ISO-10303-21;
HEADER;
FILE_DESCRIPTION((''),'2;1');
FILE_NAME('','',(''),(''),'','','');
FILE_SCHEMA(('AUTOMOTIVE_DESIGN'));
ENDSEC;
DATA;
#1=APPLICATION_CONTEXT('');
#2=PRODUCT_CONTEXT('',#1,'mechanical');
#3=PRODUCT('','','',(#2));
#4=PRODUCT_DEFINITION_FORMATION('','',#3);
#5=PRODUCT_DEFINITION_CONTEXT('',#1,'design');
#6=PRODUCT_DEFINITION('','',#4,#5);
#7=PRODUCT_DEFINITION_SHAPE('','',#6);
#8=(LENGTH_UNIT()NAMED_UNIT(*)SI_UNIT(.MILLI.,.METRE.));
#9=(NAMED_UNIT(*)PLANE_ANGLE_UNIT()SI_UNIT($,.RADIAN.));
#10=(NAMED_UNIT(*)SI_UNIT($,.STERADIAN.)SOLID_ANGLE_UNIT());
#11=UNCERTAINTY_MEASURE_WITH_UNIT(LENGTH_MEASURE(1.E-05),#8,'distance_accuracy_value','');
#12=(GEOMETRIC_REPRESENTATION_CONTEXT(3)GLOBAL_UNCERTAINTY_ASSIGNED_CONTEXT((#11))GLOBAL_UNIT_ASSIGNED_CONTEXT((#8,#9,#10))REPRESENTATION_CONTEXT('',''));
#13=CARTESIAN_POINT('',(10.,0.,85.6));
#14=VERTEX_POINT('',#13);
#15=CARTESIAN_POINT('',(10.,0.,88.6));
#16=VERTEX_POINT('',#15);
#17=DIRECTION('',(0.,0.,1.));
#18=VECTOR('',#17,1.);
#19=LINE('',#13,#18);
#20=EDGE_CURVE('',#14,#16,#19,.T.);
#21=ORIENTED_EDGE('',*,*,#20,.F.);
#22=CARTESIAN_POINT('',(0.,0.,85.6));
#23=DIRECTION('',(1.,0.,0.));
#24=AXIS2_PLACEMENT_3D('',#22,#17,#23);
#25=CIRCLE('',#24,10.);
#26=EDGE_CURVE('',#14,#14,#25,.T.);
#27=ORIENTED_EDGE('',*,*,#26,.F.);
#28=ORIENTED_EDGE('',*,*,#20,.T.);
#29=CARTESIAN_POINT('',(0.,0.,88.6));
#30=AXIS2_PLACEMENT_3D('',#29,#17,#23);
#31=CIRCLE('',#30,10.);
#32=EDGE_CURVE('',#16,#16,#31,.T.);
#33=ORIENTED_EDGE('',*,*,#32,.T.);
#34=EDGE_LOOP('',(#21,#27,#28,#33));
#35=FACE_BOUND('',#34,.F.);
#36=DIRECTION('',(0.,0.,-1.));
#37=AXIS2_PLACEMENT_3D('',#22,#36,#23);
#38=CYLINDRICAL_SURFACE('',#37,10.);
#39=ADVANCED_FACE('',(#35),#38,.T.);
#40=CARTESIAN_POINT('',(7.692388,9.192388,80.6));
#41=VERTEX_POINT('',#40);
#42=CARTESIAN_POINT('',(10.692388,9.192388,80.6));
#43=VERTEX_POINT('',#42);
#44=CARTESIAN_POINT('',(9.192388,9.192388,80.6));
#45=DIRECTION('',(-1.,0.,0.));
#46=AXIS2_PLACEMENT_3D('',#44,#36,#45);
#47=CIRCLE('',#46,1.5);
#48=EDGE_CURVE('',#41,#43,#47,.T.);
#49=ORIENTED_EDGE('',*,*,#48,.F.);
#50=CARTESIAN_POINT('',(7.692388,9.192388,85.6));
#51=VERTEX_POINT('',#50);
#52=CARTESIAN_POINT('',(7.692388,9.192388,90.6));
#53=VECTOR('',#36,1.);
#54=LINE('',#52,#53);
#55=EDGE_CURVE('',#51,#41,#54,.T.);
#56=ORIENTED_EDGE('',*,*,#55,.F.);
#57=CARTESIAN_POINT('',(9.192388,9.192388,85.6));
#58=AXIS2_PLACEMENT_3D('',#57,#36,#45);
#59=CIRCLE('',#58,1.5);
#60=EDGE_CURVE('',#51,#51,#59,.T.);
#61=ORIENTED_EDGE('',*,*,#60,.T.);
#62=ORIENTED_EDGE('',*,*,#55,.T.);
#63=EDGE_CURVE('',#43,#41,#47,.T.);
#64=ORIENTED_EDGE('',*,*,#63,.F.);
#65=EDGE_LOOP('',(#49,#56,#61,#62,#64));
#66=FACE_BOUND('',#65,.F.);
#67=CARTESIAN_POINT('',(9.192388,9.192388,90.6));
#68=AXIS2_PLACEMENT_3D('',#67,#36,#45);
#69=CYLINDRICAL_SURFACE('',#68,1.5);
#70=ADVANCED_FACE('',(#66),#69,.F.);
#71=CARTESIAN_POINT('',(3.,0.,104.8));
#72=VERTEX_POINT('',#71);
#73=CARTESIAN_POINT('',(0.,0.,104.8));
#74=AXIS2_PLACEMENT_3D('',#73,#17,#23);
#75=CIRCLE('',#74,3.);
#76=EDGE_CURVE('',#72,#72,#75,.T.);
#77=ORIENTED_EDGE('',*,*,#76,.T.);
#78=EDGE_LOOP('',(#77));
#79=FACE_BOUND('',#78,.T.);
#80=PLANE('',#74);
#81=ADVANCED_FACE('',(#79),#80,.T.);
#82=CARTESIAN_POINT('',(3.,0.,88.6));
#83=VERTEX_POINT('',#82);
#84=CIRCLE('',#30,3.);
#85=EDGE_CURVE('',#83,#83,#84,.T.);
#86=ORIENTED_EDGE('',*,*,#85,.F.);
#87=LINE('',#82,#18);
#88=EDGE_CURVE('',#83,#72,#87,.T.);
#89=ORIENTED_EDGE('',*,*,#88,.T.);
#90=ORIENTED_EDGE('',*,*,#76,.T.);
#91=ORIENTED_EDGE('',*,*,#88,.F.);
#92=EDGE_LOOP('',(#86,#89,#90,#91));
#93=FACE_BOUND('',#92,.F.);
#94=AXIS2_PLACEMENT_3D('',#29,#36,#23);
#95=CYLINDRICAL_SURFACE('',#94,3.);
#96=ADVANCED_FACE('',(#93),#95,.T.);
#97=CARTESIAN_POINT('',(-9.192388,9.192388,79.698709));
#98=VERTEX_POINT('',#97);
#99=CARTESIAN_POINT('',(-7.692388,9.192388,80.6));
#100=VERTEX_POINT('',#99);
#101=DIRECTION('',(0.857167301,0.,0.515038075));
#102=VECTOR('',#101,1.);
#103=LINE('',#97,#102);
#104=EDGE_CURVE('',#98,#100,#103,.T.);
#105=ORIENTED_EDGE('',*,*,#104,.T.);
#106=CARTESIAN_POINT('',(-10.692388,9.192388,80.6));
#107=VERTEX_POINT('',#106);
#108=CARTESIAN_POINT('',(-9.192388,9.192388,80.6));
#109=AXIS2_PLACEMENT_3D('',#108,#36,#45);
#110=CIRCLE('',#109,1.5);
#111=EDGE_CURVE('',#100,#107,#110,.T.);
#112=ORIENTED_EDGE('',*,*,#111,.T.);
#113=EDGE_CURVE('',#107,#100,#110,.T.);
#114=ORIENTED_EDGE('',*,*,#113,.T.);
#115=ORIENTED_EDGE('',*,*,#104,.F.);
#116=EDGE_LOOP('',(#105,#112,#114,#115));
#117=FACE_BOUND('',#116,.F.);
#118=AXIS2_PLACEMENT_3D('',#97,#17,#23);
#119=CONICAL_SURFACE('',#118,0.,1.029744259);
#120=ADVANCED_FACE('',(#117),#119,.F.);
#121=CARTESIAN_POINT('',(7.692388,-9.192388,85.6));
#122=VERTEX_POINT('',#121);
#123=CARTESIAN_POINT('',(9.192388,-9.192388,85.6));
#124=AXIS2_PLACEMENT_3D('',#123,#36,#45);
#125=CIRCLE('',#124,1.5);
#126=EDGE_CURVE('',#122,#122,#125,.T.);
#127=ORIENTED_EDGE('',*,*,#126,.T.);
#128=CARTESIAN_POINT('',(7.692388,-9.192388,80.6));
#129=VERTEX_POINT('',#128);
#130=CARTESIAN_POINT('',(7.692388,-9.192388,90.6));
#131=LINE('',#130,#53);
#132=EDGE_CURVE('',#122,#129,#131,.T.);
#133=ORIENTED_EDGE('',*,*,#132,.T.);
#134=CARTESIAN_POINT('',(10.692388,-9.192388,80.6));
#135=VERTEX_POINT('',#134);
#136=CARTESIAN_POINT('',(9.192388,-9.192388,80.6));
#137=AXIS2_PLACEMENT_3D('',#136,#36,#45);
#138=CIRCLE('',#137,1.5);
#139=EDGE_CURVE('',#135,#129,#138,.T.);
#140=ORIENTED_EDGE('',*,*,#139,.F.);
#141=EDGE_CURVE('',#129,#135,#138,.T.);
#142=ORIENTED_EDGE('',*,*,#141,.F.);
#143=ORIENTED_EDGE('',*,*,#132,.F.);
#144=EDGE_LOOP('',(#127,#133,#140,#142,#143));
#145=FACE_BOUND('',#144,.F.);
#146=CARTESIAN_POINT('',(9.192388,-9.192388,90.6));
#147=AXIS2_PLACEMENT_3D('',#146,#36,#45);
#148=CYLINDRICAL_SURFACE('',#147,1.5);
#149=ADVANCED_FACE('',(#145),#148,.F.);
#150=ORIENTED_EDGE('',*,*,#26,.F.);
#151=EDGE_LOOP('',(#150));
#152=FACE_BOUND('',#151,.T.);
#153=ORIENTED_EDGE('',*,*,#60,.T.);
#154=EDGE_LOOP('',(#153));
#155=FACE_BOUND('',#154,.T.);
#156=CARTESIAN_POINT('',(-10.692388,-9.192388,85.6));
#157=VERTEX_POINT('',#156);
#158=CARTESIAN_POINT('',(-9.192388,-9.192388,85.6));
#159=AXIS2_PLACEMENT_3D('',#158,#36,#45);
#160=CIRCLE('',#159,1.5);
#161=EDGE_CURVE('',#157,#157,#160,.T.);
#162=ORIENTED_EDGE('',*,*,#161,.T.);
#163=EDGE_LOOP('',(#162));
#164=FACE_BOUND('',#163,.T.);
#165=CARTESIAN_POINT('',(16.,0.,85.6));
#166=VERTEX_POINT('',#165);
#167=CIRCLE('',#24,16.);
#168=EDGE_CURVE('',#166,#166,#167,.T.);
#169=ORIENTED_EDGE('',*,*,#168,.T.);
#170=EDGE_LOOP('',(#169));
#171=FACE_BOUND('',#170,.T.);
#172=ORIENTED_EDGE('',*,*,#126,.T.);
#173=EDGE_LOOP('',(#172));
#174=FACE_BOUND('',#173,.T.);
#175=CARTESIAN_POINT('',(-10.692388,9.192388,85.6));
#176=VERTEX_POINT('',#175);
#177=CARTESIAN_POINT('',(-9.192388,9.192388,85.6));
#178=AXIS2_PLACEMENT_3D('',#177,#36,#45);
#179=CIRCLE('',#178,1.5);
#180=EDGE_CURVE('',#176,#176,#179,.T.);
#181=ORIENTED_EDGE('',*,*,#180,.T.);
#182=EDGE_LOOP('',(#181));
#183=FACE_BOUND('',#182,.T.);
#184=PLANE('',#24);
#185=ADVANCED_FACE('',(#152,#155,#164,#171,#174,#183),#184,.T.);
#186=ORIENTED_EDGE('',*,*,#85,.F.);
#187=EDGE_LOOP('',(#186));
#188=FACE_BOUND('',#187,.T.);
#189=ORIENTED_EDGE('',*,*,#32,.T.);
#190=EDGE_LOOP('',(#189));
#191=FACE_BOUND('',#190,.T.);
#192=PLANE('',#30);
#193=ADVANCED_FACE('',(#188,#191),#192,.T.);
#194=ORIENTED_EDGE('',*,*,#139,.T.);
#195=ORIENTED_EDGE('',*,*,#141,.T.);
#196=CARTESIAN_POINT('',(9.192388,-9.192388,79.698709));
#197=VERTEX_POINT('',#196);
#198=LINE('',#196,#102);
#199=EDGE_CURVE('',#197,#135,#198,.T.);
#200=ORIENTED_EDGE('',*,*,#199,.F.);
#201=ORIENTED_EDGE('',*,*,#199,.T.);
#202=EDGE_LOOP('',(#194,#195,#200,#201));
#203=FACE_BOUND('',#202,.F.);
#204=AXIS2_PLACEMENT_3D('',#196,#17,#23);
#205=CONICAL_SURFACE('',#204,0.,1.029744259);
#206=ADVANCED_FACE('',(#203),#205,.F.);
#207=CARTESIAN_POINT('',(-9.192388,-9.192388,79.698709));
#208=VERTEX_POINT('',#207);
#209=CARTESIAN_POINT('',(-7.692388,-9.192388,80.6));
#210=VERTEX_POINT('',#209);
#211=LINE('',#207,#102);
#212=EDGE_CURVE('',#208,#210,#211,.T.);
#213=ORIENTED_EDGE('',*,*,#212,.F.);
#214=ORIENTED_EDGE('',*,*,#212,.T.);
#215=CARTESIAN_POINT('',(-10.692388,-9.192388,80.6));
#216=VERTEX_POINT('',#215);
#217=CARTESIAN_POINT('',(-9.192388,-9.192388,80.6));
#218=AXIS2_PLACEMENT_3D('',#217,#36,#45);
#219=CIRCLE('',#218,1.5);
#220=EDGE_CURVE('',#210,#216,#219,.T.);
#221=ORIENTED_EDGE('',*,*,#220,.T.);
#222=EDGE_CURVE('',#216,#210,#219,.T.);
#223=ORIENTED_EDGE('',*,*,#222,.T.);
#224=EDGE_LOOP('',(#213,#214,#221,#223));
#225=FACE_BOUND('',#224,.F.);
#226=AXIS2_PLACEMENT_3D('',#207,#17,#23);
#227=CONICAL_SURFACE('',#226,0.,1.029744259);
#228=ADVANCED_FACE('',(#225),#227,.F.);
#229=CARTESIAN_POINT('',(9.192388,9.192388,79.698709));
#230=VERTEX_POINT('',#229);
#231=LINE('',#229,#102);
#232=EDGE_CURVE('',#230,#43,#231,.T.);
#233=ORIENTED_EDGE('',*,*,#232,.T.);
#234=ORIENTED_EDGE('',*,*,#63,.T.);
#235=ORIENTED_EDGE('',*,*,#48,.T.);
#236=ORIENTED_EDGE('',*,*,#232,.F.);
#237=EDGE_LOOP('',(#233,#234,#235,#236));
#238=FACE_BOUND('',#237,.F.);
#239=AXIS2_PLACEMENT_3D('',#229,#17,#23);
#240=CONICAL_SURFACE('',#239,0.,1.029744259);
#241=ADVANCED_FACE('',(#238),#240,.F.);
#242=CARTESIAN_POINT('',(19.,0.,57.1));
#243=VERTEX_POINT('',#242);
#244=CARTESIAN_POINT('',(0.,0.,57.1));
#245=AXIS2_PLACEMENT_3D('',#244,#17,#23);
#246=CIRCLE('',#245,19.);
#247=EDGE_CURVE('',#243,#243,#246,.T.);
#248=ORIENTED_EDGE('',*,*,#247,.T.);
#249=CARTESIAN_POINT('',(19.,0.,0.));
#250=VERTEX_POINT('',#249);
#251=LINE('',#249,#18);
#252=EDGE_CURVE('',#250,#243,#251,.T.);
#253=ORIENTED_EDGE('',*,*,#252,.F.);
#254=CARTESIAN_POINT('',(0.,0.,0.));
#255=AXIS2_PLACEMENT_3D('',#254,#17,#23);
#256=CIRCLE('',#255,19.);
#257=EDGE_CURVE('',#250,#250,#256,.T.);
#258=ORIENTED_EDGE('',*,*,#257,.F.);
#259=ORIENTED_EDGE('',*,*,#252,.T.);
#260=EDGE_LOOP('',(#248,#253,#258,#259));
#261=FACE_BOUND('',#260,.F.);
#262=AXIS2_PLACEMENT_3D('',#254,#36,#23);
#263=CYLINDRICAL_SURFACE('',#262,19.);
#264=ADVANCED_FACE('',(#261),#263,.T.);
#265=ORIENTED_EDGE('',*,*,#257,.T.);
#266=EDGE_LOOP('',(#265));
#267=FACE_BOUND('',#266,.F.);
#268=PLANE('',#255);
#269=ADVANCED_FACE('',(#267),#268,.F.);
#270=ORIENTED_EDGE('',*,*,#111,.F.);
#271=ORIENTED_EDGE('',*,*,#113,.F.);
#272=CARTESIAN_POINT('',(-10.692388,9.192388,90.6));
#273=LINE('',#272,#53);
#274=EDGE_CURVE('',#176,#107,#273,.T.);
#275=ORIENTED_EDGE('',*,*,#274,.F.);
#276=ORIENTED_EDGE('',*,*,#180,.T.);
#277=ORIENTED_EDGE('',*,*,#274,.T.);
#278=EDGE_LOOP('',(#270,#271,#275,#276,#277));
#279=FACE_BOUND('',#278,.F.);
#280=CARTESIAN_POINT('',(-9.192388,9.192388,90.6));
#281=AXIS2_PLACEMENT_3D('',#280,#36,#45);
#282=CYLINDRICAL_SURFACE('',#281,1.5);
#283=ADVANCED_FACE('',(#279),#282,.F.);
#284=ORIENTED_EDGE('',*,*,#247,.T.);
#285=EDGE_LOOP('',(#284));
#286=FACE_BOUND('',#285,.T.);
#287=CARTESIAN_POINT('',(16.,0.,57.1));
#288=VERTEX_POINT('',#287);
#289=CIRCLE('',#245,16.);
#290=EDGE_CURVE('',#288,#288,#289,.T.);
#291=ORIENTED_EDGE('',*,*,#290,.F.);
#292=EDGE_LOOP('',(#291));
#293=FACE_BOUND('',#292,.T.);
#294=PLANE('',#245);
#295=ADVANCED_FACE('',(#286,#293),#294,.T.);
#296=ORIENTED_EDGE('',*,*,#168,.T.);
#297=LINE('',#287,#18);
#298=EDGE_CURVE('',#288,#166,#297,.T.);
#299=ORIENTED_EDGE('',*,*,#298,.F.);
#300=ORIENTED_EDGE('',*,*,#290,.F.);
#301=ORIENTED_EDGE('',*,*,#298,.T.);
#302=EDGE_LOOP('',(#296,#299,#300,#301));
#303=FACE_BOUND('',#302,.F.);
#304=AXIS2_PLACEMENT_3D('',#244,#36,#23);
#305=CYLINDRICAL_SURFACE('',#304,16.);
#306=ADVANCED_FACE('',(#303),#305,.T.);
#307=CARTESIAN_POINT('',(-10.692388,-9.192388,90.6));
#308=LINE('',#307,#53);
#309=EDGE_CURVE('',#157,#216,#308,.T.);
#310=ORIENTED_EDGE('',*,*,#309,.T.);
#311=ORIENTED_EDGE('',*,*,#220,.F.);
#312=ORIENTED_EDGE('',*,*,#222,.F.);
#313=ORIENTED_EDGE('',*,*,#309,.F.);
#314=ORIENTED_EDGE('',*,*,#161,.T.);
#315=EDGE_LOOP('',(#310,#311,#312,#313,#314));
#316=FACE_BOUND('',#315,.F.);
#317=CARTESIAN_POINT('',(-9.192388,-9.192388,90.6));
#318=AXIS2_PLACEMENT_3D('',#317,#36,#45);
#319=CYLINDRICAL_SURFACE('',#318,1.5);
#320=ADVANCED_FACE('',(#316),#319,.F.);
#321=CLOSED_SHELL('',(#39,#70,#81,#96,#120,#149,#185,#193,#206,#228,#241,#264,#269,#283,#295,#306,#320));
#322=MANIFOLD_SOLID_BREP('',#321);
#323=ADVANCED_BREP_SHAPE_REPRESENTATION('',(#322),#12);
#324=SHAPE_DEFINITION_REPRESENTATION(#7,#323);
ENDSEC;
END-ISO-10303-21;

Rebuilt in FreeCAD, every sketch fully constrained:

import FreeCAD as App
import Part
import Sketcher
from FreeCAD import Vector

doc = App.newDocument("Part")
body = doc.addObject("PartDesign::Body", "Body")

# Sketch on XY plane
sketch1 = body.newObject("Sketcher::SketchObject", "Sketch")
sketch1.AttachmentSupport = (doc.getObject("XY_Plane"), [""])
sketch1.MapMode = "FlatFace"
sketch1.addGeometry(Part.Circle(Vector(0, 0, 0), Vector(0, 0, 1), 19), False)
sketch1.addConstraint([
    Sketcher.Constraint("Coincident", 0, 3, -1, 1),
    Sketcher.Constraint("Diameter", 0, 38.0),
])
pad1 = body.newObject("PartDesign::Pad", "Pad")
pad1.Profile = sketch1
pad1.Length = 57.1

# Sketch on XY plane
sketch2 = body.newObject("Sketcher::SketchObject", "Sketch001")
sketch2.AttachmentSupport = (doc.getObject("XY_Plane"), [""])
sketch2.MapMode = "FlatFace"
sketch2.AttachmentOffset = App.Placement(Vector(0, 0, 57.1), App.Rotation())
sketch2.addGeometry(Part.Circle(Vector(0, 0, 0), Vector(0, 0, 1), 16), False)
sketch2.addConstraint([
    Sketcher.Constraint("Coincident", 0, 3, -1, 1),
    Sketcher.Constraint("Diameter", 0, 32.0),
])
pad2 = body.newObject("PartDesign::Pad", "Pad001")
pad2.Profile = sketch2
pad2.Length = 28.5

# Sketch on XY plane
sketch3 = body.newObject("Sketcher::SketchObject", "Sketch002")
sketch3.AttachmentSupport = (doc.getObject("XY_Plane"), [""])
sketch3.MapMode = "FlatFace"
sketch3.AttachmentOffset = App.Placement(Vector(0, 0, 85.6), App.Rotation())
sketch3.addGeometry(Part.Circle(Vector(0, 0, 0), Vector(0, 0, 1), 10), False)
sketch3.addConstraint([
    Sketcher.Constraint("Coincident", 0, 3, -1, 1),
    Sketcher.Constraint("Diameter", 0, 20.0),
])
pad3 = body.newObject("PartDesign::Pad", "Pad002")
pad3.Profile = sketch3
pad3.Length = 3

# Sketch on XY plane
sketch4 = body.newObject("Sketcher::SketchObject", "Sketch003")
sketch4.AttachmentSupport = (doc.getObject("XY_Plane"), [""])
sketch4.MapMode = "FlatFace"
sketch4.AttachmentOffset = App.Placement(Vector(0, 0, 88.6), App.Rotation())
sketch4.addGeometry(Part.Circle(Vector(0, 0, 0), Vector(0, 0, 1), 3), False)
sketch4.addConstraint([
    Sketcher.Constraint("Coincident", 0, 3, -1, 1),
    Sketcher.Constraint("Diameter", 0, 6.0),
])
pad4 = body.newObject("PartDesign::Pad", "Pad003")
pad4.Profile = sketch4
pad4.Length = 16.2

# Sketch on XY plane
sketch5 = body.newObject("Sketcher::SketchObject", "Sketch004")
sketch5.AttachmentSupport = (doc.getObject("XY_Plane"), [""])
sketch5.MapMode = "FlatFace"
sketch5.AttachmentOffset = App.Placement(Vector(0, 0, 85.6), App.Rotation())
sketch5.addGeometry([
    Part.Circle(Vector(-9.192388, 9.192388, 0), Vector(0, 0, 1), 1.5),
    Part.Circle(Vector(9.192388, 9.192388, 0), Vector(0, 0, 1), 1.5),
    Part.Circle(Vector(9.192388, -9.192388, 0), Vector(0, 0, 1), 1.5),
    Part.Circle(Vector(-9.192388, -9.192388, 0), Vector(0, 0, 1), 1.5),
], False)
sketch5.addConstraint([
    Sketcher.Constraint("Equal", 0, 1),
    Sketcher.Constraint("Equal", 1, 2),
    Sketcher.Constraint("Equal", 2, 3),
    Sketcher.Constraint("Symmetric", 0, 3, 2, 3, -1, 1),
    Sketcher.Constraint("Symmetric", 1, 3, 3, 3, -1, 1),
    Sketcher.Constraint("Symmetric", 0, 3, 1, 3, -2),
    Sketcher.Constraint("Diameter", 0, 3.0),
    Sketcher.Constraint("DistanceX", 0, 3, -1, 1, 9.192388),
    Sketcher.Constraint("DistanceY", -1, 1, 0, 3, 9.192388),
])
doc.recompute()
hole = body.newObject("PartDesign::Hole", "Hole")
hole.Profile = sketch5
hole.ThreadType = "None"
hole.Diameter = 3
hole.DepthType = "Dimension"
hole.Depth = 5
hole.DrillPoint = "Angled"
hole.DrillPointAngle = 118

doc.recompute()
